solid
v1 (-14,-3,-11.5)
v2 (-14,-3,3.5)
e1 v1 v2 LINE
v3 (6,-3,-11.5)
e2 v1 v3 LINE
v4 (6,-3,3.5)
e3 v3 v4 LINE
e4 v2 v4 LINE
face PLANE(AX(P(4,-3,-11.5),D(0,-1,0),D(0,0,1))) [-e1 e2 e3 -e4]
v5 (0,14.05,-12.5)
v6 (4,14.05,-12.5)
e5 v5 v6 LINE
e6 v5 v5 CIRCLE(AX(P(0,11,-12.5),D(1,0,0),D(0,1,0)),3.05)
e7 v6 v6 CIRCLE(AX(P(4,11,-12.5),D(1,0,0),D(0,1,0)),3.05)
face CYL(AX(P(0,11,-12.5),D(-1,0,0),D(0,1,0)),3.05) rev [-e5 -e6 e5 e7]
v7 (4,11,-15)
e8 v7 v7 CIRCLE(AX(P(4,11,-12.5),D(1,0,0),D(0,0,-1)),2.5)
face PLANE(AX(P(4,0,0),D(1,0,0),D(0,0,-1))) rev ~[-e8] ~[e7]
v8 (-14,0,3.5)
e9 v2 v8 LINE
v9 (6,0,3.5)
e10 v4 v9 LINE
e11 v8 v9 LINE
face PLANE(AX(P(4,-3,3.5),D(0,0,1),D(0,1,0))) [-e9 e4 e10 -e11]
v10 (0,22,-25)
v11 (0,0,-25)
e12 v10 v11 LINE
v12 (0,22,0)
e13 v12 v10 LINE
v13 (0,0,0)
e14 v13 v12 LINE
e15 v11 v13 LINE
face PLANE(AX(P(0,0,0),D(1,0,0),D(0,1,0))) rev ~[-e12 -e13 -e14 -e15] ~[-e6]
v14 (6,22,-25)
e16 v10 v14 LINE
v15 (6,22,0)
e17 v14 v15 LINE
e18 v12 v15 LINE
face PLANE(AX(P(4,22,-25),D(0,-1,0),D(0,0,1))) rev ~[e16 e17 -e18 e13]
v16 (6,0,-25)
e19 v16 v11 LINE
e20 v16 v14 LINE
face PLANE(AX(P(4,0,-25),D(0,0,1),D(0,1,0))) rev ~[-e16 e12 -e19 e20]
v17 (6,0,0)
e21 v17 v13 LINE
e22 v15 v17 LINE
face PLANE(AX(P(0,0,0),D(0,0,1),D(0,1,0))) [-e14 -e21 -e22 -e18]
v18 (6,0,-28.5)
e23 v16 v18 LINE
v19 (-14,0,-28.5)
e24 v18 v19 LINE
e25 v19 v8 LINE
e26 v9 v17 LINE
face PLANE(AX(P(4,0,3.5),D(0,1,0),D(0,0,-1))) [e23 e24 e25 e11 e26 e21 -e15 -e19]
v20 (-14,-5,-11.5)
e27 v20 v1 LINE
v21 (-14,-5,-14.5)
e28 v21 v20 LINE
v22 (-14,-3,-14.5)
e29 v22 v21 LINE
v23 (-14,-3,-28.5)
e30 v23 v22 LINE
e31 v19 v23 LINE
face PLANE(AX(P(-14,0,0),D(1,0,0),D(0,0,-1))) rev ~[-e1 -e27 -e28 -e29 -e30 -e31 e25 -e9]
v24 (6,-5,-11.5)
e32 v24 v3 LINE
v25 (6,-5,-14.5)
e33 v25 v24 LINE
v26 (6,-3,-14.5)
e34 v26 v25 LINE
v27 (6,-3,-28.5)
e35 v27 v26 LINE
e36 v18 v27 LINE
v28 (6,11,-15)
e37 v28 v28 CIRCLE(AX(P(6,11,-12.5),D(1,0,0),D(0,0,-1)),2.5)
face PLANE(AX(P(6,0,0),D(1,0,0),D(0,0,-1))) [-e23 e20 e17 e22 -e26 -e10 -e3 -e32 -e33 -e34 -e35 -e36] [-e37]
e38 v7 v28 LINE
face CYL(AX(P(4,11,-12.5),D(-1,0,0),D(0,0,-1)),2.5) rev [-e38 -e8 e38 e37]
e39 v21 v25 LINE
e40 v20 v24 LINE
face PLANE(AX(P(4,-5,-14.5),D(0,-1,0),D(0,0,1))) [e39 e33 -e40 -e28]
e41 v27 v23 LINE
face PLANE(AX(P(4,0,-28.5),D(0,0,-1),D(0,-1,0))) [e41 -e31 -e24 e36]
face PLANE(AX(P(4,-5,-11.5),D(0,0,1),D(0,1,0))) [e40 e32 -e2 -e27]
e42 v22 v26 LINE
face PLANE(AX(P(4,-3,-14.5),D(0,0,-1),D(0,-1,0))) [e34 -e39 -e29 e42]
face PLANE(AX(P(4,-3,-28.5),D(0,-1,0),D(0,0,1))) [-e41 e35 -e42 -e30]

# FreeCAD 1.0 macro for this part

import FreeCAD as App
import Part
import Sketcher
Q = App.Units.Quantity


def add_polygon(sketch, points):
    """Adds a closed chain of lines whose ends are joined by coincident constraints."""
    first, n = sketch.GeometryCount, len(points)
    for a, b in zip(points, points[1:] + points[:1]):
        sketch.addGeometry(Part.LineSegment(App.Vector(*a, 0), App.Vector(*b, 0)), False)
    for i in range(n):
        sketch.addConstraint(Sketcher.Constraint("Coincident", first + i, 2, first + (i + 1) % n, 1))

doc = App.newDocument("Part")
body = doc.addObject("PartDesign::Body", "Body")

# Sketch on YZ plane
sketch1 = doc.addObject("Sketcher::SketchObject", "Sketch")
body.addObject(sketch1)
sketch1.AttachmentSupport = (doc.YZ_Plane, [""])
sketch1.MapMode = "FlatFace"
add_polygon(sketch1, [(22, 0), (0, 0), (0, -25), (22, -25)])  # lines 0-3
sketch1.addGeometry(Part.Circle(App.Vector(11, -12.5, 0), App.Vector(0, 0, 1), 3), False)  # 4
sketch1.addConstraint(Sketcher.Constraint("Horizontal", 0))
sketch1.addConstraint(Sketcher.Constraint("Vertical", 1))
sketch1.addConstraint(Sketcher.Constraint("Horizontal", 2))
sketch1.addConstraint(Sketcher.Constraint("Vertical", 3))
sketch1.addConstraint(Sketcher.Constraint("Coincident", 0, 2, -1, 1))
sketch1.addConstraint(Sketcher.Constraint("Diameter", 4, Q("6.1 mm")))
sketch1.addConstraint(Sketcher.Constraint("DistanceX", 0, 2, 0, 1, Q("22 mm")))
sketch1.addConstraint(Sketcher.Constraint("DistanceY", 1, 2, 1, 1, Q("25 mm")))
sketch1.addConstraint(Sketcher.Constraint("DistanceX", -1, 1, 4, 3, Q("11 mm")))
sketch1.addConstraint(Sketcher.Constraint("DistanceY", 4, 3, -1, 1, Q("12.5 mm")))
pad1 = doc.addObject("PartDesign::Pad", "Pad")
body.addObject(pad1)
pad1.Profile = sketch1
pad1.Length = 4

# Sketch on YZ plane
sketch2 = doc.addObject("Sketcher::SketchObject", "Sketch001")
body.addObject(sketch2)
sketch2.AttachmentSupport = (doc.YZ_Plane, [""])
sketch2.MapMode = "FlatFace"
sketch2.AttachmentOffset = App.Placement(App.Vector(0, 0, 4), App.Rotation())
add_polygon(sketch2, [(0, 3.5), (-3, 3.5), (-3, -11.5), (-5, -11.5), (-5, -14.5), (-3, -14.5), (-3, -28.5), (0, -28.5)])  # lines 0-7
sketch2.addConstraint(Sketcher.Constraint("Horizontal", 0))
sketch2.addConstraint(Sketcher.Constraint("Vertical", 1))
sketch2.addConstraint(Sketcher.Constraint("Horizontal", 2))
sketch2.addConstraint(Sketcher.Constraint("Vertical", 3))
sketch2.addConstraint(Sketcher.Constraint("Horizontal", 4))
sketch2.addConstraint(Sketcher.Constraint("Vertical", 5))
sketch2.addConstraint(Sketcher.Constraint("Horizontal", 6))
sketch2.addConstraint(Sketcher.Constraint("Vertical", 7))
sketch2.addConstraint(Sketcher.Constraint("PointOnObject", 6, 2, -2))
sketch2.addConstraint(Sketcher.Constraint("Vertical", 1, 2, 4, 2))
sketch2.addConstraint(Sketcher.Constraint("Equal", 6, 3))
sketch2.addConstraint(Sketcher.Constraint("DistanceX", 0, 2, 0, 1, Q("3 mm")))
sketch2.addConstraint(Sketcher.Constraint("DistanceX", 2, 2, 2, 1, Q("2 mm")))
sketch2.addConstraint(Sketcher.Constraint("DistanceY", -1, 1, 0, 2, Q("3.5 mm")))
sketch2.addConstraint(Sketcher.Constraint("DistanceY", 1, 2, -1, 1, Q("11.5 mm")))
sketch2.addConstraint(Sketcher.Constraint("DistanceY", 5, 2, 5, 1, Q("14 mm")))
pad2 = doc.addObject("PartDesign::Pad", "Pad001")
body.addObject(pad2)
pad2.Profile = sketch2
pad2.Type = "TwoLengths"
pad2.Length = 2
pad2.Length2 = 18

# Sketch on YZ plane
sketch3 = doc.addObject("Sketcher::SketchObject", "Sketch002")
body.addObject(sketch3)
sketch3.AttachmentSupport = (doc.YZ_Plane, [""])
sketch3.MapMode = "FlatFace"
sketch3.AttachmentOffset = App.Placement(App.Vector(0, 0, 4), App.Rotation())
add_polygon(sketch3, [(0, -25), (22, -25), (22, 0), (0, 0)])  # lines 0-3
sketch3.addGeometry(Part.Circle(App.Vector(11, -12.5, 0), App.Vector(0, 0, 1), 2.5), False)  # 4
sketch3.addConstraint(Sketcher.Constraint("Horizontal", 0))
sketch3.addConstraint(Sketcher.Constraint("Vertical", 1))
sketch3.addConstraint(Sketcher.Constraint("Horizontal", 2))
sketch3.addConstraint(Sketcher.Constraint("Vertical", 3))
sketch3.addConstraint(Sketcher.Constraint("Coincident", 2, 2, -1, 1))
sketch3.addConstraint(Sketcher.Constraint("Diameter", 4, Q("5 mm")))
sketch3.addConstraint(Sketcher.Constraint("DistanceX", -1, 1, 4, 3, Q("11 mm")))
sketch3.addConstraint(Sketcher.Constraint("DistanceX", 4, 3, 0, 2, Q("11 mm")))
sketch3.addConstraint(Sketcher.Constraint("DistanceY", 4, 3, -1, 1, Q("12.5 mm")))
sketch3.addConstraint(Sketcher.Constraint("DistanceY", 0, 2, 4, 3, Q("12.5 mm")))
pad3 = doc.addObject("PartDesign::Pad", "Pad002")
body.addObject(pad3)
pad3.Profile = sketch3
pad3.Length = 2

doc.recompute()
